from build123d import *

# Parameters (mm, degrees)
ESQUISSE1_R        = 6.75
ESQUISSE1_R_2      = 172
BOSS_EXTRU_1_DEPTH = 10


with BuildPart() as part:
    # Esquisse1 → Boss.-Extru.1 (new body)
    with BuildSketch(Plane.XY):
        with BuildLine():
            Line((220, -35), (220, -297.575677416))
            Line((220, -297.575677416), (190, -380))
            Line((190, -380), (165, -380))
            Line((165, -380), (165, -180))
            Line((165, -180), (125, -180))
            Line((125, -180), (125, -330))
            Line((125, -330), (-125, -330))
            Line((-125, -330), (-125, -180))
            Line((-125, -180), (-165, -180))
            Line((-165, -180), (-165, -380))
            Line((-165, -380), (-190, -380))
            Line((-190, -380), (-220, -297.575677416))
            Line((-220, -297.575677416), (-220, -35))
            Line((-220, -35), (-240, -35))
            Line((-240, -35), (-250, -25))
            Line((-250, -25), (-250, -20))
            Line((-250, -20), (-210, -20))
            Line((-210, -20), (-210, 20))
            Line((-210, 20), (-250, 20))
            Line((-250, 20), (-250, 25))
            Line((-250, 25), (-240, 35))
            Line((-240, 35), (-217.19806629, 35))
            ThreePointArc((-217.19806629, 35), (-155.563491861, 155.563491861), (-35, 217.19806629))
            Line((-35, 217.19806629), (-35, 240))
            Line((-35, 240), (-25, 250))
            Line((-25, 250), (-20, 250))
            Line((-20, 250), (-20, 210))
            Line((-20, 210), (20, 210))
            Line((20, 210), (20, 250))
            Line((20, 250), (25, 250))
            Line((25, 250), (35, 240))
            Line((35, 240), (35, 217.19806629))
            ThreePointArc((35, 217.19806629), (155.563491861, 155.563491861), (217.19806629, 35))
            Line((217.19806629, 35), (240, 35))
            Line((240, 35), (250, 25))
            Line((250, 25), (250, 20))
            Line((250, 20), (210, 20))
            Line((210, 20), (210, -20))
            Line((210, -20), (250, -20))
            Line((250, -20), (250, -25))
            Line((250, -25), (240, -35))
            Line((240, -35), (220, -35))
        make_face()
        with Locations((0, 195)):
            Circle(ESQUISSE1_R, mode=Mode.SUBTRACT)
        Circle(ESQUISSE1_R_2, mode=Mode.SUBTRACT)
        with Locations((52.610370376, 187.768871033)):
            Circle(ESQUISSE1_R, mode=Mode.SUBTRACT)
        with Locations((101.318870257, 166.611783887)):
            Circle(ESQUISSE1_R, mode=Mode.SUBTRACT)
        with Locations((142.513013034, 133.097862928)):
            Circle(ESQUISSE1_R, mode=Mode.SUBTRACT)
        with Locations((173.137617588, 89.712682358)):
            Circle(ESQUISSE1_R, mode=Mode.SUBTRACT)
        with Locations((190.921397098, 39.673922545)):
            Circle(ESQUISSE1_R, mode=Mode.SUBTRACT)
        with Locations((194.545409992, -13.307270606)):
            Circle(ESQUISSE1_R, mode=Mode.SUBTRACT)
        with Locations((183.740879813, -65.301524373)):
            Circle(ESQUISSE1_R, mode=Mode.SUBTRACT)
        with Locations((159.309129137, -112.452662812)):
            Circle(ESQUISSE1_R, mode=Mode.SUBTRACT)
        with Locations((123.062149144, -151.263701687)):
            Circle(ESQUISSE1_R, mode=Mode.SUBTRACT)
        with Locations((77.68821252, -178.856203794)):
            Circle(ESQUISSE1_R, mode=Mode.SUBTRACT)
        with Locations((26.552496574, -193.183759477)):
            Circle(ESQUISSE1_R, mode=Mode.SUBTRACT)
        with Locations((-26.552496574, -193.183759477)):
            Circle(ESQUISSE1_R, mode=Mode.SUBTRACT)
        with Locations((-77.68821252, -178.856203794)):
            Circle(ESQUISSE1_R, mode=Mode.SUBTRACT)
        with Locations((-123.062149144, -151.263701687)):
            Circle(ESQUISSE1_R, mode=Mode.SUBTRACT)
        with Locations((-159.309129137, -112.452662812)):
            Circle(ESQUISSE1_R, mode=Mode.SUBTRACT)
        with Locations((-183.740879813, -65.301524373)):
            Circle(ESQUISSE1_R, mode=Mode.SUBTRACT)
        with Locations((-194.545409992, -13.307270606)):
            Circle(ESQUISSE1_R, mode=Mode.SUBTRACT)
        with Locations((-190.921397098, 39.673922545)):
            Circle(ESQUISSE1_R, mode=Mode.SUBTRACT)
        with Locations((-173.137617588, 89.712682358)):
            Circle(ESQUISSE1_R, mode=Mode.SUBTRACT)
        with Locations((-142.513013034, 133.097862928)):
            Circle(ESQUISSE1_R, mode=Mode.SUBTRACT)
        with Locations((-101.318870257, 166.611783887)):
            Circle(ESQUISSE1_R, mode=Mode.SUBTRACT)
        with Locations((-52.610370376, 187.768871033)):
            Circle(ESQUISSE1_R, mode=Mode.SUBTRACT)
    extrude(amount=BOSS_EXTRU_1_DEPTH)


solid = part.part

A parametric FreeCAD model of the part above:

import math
import FreeCAD as App
import Part
import Sketcher

V = App.Vector
Q = App.Units.Quantity

doc = App.newDocument("Part")
body = doc.addObject("PartDesign::Body", "Body")

# Sketch on XY plane
sketch1 = doc.addObject("Sketcher::SketchObject", "Sketch")
body.addObject(sketch1)
sketch1.AttachmentSupport = (doc.XY_Plane, [""])
sketch1.MapMode = "FlatFace"
sketch1.addGeometry([
    Part.LineSegment(V(220, -297.575677, 0), V(220, -35, 0)),  # 0
    Part.LineSegment(V(220, -35, 0), V(240, -35, 0)),  # 1
    Part.LineSegment(V(240, -35, 0), V(250, -25, 0)),  # 2
    Part.LineSegment(V(250, -25, 0), V(250, -20, 0)),  # 3
    Part.LineSegment(V(250, -20, 0), V(210, -20, 0)),  # 4
    Part.LineSegment(V(210, -20, 0), V(210, 20, 0)),  # 5
    Part.LineSegment(V(210, 20, 0), V(250, 20, 0)),  # 6
    Part.LineSegment(V(250, 20, 0), V(250, 25, 0)),  # 7
    Part.LineSegment(V(250, 25, 0), V(240, 35, 0)),  # 8
    Part.LineSegment(V(240, 35, 0), V(217.198066, 35, 0)),  # 9
    Part.ArcOfCircle(Part.Circle(V(0, 0, 0), V(0, 0, 1), 220), math.radians(9.154133), math.radians(80.845867)),  # 10
    Part.LineSegment(V(35, 217.198066, 0), V(35, 240, 0)),  # 11
    Part.LineSegment(V(35, 240, 0), V(25, 250, 0)),  # 12
    Part.LineSegment(V(25, 250, 0), V(20, 250, 0)),  # 13
    Part.LineSegment(V(20, 250, 0), V(20, 210, 0)),  # 14
    Part.LineSegment(V(20, 210, 0), V(-20, 210, 0)),  # 15
    Part.LineSegment(V(-20, 210, 0), V(-20, 250, 0)),  # 16
    Part.LineSegment(V(-20, 250, 0), V(-25, 250, 0)),  # 17
    Part.LineSegment(V(-25, 250, 0), V(-35, 240, 0)),  # 18
    Part.LineSegment(V(-35, 240, 0), V(-35, 217.198066, 0)),  # 19
    Part.ArcOfCircle(Part.Circle(V(0, 0, 0), V(0, 0, 1), 220), math.radians(99.154133), math.radians(170.845867)),  # 20
    Part.LineSegment(V(-217.198066, 35, 0), V(-240, 35, 0)),  # 21
    Part.LineSegment(V(-240, 35, 0), V(-250, 25, 0)),  # 22
    Part.LineSegment(V(-250, 25, 0), V(-250, 20, 0)),  # 23
    Part.LineSegment(V(-250, 20, 0), V(-210, 20, 0)),  # 24
    Part.LineSegment(V(-210, 20, 0), V(-210, -20, 0)),  # 25
    Part.LineSegment(V(-210, -20, 0), V(-250, -20, 0)),  # 26
    Part.LineSegment(V(-250, -20, 0), V(-250, -25, 0)),  # 27
    Part.LineSegment(V(-250, -25, 0), V(-240, -35, 0)),  # 28
    Part.LineSegment(V(-240, -35, 0), V(-220, -35, 0)),  # 29
    Part.LineSegment(V(-220, -35, 0), V(-220, -297.575677, 0)),  # 30
    Part.LineSegment(V(-220, -297.575677, 0), V(-190, -380, 0)),  # 31
    Part.LineSegment(V(-190, -380, 0), V(-165, -380, 0)),  # 32
    Part.LineSegment(V(-165, -380, 0), V(-165, -180, 0)),  # 33
    Part.LineSegment(V(-165, -180, 0), V(-125, -180, 0)),  # 34
    Part.LineSegment(V(-125, -180, 0), V(-125, -330, 0)),  # 35
    Part.LineSegment(V(-125, -330, 0), V(125, -330, 0)),  # 36
    Part.LineSegment(V(125, -330, 0), V(125, -180, 0)),  # 37
    Part.LineSegment(V(125, -180, 0), V(165, -180, 0)),  # 38
    Part.LineSegment(V(165, -180, 0), V(165, -380, 0)),  # 39
    Part.LineSegment(V(165, -380, 0), V(190, -380, 0)),  # 40
    Part.LineSegment(V(190, -380, 0), V(220, -297.575677, 0)),  # 41
    Part.Circle(V(123.062149, -151.263702, 0), V(0, 0, 1), 6.75),  # 42
    Part.Circle(V(159.309129, -112.452663, 0), V(0, 0, 1), 6.75),  # 43
    Part.Circle(V(77.688213, -178.856204, 0), V(0, 0, 1), 6.75),  # 44
    Part.Circle(V(26.552497, -193.183759, 0), V(0, 0, 1), 6.75),  # 45
    Part.Circle(V(183.74088, -65.301524, 0), V(0, 0, 1), 6.75),  # 46
    Part.Circle(V(194.54541, -13.307271, 0), V(0, 0, 1), 6.75),  # 47
    Part.Circle(V(-26.552497, -193.183759, 0), V(0, 0, 1), 6.75),  # 48
    Part.Circle(V(-77.688213, -178.856204, 0), V(0, 0, 1), 6.75),  # 49
    Part.Circle(V(-123.062149, -151.263702, 0), V(0, 0, 1), 6.75),  # 50
    Part.Circle(V(-159.309129, -112.452663, 0), V(0, 0, 1), 6.75),  # 51
    Part.Circle(V(0, 0, 0), V(0, 0, 1), 172),  # 52
    Part.Circle(V(-183.74088, -65.301524, 0), V(0, 0, 1), 6.75),  # 53
    Part.Circle(V(-194.54541, -13.307271, 0), V(0, 0, 1), 6.75),  # 54
    Part.Circle(V(190.921397, 39.673923, 0), V(0, 0, 1), 6.75),  # 55
    Part.Circle(V(173.137618, 89.712682, 0), V(0, 0, 1), 6.75),  # 56
    Part.Circle(V(142.513013, 133.097863, 0), V(0, 0, 1), 6.75),  # 57
    Part.Circle(V(101.31887, 166.611784, 0), V(0, 0, 1), 6.75),  # 58
    Part.Circle(V(52.61037, 187.768871, 0), V(0, 0, 1), 6.75),  # 59
    Part.Circle(V(-190.921397, 39.673923, 0), V(0, 0, 1), 6.75),  # 60
    Part.Circle(V(-173.137618, 89.712682, 0), V(0, 0, 1), 6.75),  # 61
    Part.Circle(V(0, 195, 0), V(0, 0, 1), 6.75),  # 62
    Part.Circle(V(-52.61037, 187.768871, 0), V(0, 0, 1), 6.75),  # 63
    Part.Circle(V(-142.513013, 133.097863, 0), V(0, 0, 1), 6.75),  # 64
    Part.Circle(V(-101.31887, 166.611784, 0), V(0, 0, 1), 6.75),  # 65
], False)
sketch1.addConstraint([
    Sketcher.Constraint("Coincident", 0, 2, 1, 1),
    Sketcher.Constraint("Coincident", 1, 2, 2, 1),
    Sketcher.Constraint("Coincident", 2, 2, 3, 1),
    Sketcher.Constraint("Coincident", 3, 2, 4, 1),
    Sketcher.Constraint("Coincident", 4, 2, 5, 1),
    Sketcher.Constraint("Coincident", 5, 2, 6, 1),
    Sketcher.Constraint("Coincident", 6, 2, 7, 1),
    Sketcher.Constraint("Coincident", 7, 2, 8, 1),
    Sketcher.Constraint("Coincident", 8, 2, 9, 1),
    Sketcher.Constraint("Coincident", 9, 2, 10, 1),
    Sketcher.Constraint("Coincident", 10, 2, 11, 1),
    Sketcher.Constraint("Coincident", 11, 2, 12, 1),
    Sketcher.Constraint("Coincident", 12, 2, 13, 1),
    Sketcher.Constraint("Coincident", 13, 2, 14, 1),
    Sketcher.Constraint("Coincident", 14, 2, 15, 1),
    Sketcher.Constraint("Coincident", 15, 2, 16, 1),
    Sketcher.Constraint("Coincident", 16, 2, 17, 1),
    Sketcher.Constraint("Coincident", 17, 2, 18, 1),
    Sketcher.Constraint("Coincident", 18, 2, 19, 1),
    Sketcher.Constraint("Coincident", 19, 2, 20, 1),
    Sketcher.Constraint("Coincident", 20, 2, 21, 1),
    Sketcher.Constraint("Coincident", 21, 2, 22, 1),
    Sketcher.Constraint("Coincident", 22, 2, 23, 1),
    Sketcher.Constraint("Coincident", 23, 2, 24, 1),
    Sketcher.Constraint("Coincident", 24, 2, 25, 1),
    Sketcher.Constraint("Coincident", 25, 2, 26, 1),
    Sketcher.Constraint("Coincident", 26, 2, 27, 1),
    Sketcher.Constraint("Coincident", 27, 2, 28, 1),
    Sketcher.Constraint("Coincident", 28, 2, 29, 1),
    Sketcher.Constraint("Coincident", 29, 2, 30, 1),
    Sketcher.Constraint("Coincident", 30, 2, 31, 1),
    Sketcher.Constraint("Coincident", 31, 2, 32, 1),
    Sketcher.Constraint("Coincident", 32, 2, 33, 1),
    Sketcher.Constraint("Coincident", 33, 2, 34, 1),
    Sketcher.Constraint("Coincident", 34, 2, 35, 1),
    Sketcher.Constraint("Coincident", 35, 2, 36, 1),
    Sketcher.Constraint("Coincident", 36, 2, 37, 1),
    Sketcher.Constraint("Coincident", 37, 2, 38, 1),
    Sketcher.Constraint("Coincident", 38, 2, 39, 1),
    Sketcher.Constraint("Coincident", 39, 2, 40, 1),
    Sketcher.Constraint("Coincident", 40, 2, 41, 1),
    Sketcher.Constraint("Coincident", 41, 2, 0, 1),
    Sketcher.Constraint("Vertical", 0),
    Sketcher.Constraint("Horizontal", 1),
    Sketcher.Constraint("Vertical", 3),
    Sketcher.Constraint("Horizontal", 4),
    Sketcher.Constraint("Vertical", 5),
    Sketcher.Constraint("Horizontal", 6),
    Sketcher.Constraint("Vertical", 7),
    Sketcher.Constraint("Horizontal", 9),
    Sketcher.Constraint("Vertical", 11),
    Sketcher.Constraint("Horizontal", 13),
    Sketcher.Constraint("Vertical", 14),
    Sketcher.Constraint("Horizontal", 15),
    Sketcher.Constraint("Vertical", 16),
    Sketcher.Constraint("Horizontal", 17),
    Sketcher.Constraint("Vertical", 19),
    Sketcher.Constraint("Horizontal", 21),
    Sketcher.Constraint("Vertical", 23),
    Sketcher.Constraint("Horizontal", 24),
    Sketcher.Constraint("Vertical", 25),
    Sketcher.Constraint("Horizontal", 26),
    Sketcher.Constraint("Vertical", 27),
    Sketcher.Constraint("Horizontal", 29),
    Sketcher.Constraint("Vertical", 30),
    Sketcher.Constraint("Horizontal", 32),
    Sketcher.Constraint("Vertical", 33),
    Sketcher.Constraint("Horizontal", 34),
    Sketcher.Constraint("Vertical", 35),
    Sketcher.Constraint("Horizontal", 36),
    Sketcher.Constraint("Vertical", 37),
    Sketcher.Constraint("Horizontal", 38),
    Sketcher.Constraint("Vertical", 39),
    Sketcher.Constraint("Horizontal", 40),
    Sketcher.Constraint("Coincident", 10, 3, -1, 1),
    Sketcher.Constraint("Coincident", 20, 3, -1, 1),
    Sketcher.Constraint("Coincident", 52, 3, -1, 1),
    Sketcher.Constraint("Equal", 10, 20),
    Sketcher.Constraint("Equal", 42, 43),
    Sketcher.Constraint("Equal", 43, 44),
    Sketcher.Constraint("Equal", 44, 45),
    Sketcher.Constraint("Equal", 45, 46),
    Sketcher.Constraint("Equal", 46, 47),
    Sketcher.Constraint("Equal", 47, 48),
    Sketcher.Constraint("Equal", 48, 49),
    Sketcher.Constraint("Equal", 49, 50),
    Sketcher.Constraint("Equal", 50, 51),
    Sketcher.Constraint("Equal", 51, 53),
    Sketcher.Constraint("Equal", 53, 54),
    Sketcher.Constraint("Equal", 54, 55),
    Sketcher.Constraint("Equal", 55, 56),
    Sketcher.Constraint("Equal", 56, 57),
    Sketcher.Constraint("Equal", 57, 58),
    Sketcher.Constraint("Equal", 58, 59),
    Sketcher.Constraint("Equal", 59, 60),
    Sketcher.Constraint("Equal", 60, 61),
    Sketcher.Constraint("Equal", 61, 62),
    Sketcher.Constraint("Equal", 62, 63),
    Sketcher.Constraint("Equal", 63, 64),
    Sketcher.Constraint("Equal", 64, 65),
    Sketcher.Constraint("Symmetric", 1, 2, 21, 2, -1, 1),
    Sketcher.Constraint("Symmetric", 2, 2, 22, 2, -1, 1),
    Sketcher.Constraint("Symmetric", 4, 2, 24, 2, -1, 1),
    Sketcher.Constraint("Symmetric", 6, 2, 26, 2, -1, 1),
    Sketcher.Constraint("Symmetric", 8, 2, 28, 2, -1, 1),
    Sketcher.Constraint("Symmetric", 45, 3, 48, 3, -2),
    Sketcher.Constraint("Symmetric", 44, 3, 49, 3, -2),
    Sketcher.Constraint("Symmetric", 42, 3, 50, 3, -2),
    Sketcher.Constraint("Symmetric", 43, 3, 51, 3, -2),
    Sketcher.Constraint("Symmetric", 46, 3, 53, 3, -2),
    Sketcher.Constraint("Symmetric", 47, 3, 54, 3, -2),
    Sketcher.Constraint("Symmetric", 55, 3, 60, 3, -2),
    Sketcher.Constraint("Symmetric", 56, 3, 61, 3, -2),
    Sketcher.Constraint("Symmetric", 59, 3, 63, 3, -2),
    Sketcher.Constraint("Symmetric", 57, 3, 64, 3, -2),
    Sketcher.Constraint("Symmetric", 58, 3, 65, 3, -2),
    Sketcher.Constraint("Symmetric", 13, 2, 16, 2, -2),
    Sketcher.Constraint("Symmetric", 11, 2, 18, 2, -2),
    Sketcher.Constraint("Symmetric", 8, 2, 21, 2, -2),
    Sketcher.Constraint("Symmetric", 7, 2, 22, 2, -2),
    Sketcher.Constraint("Symmetric", 34, 2, 37, 2, -2),
    Sketcher.Constraint("Symmetric", 32, 2, 39, 2, -2),
    Sketcher.Constraint("Symmetric", 30, 2, 41, 2, -2),
    Sketcher.Constraint("PointOnObject", 62, 3, -2),
    Sketcher.Constraint("Perpendicular", 2, 8),
    Sketcher.Constraint("Parallel", 8, 12),
    Sketcher.Constraint("Perpendicular", 12, 18),
    Sketcher.Constraint("Perpendicular", 22, 28),
    Sketcher.Constraint("Horizontal", 6, 2, 23, 2),
    Sketcher.Constraint("Equal", 6, 15),
    Sketcher.Constraint("Equal", 26, 34),
    Sketcher.Constraint("Equal", 32, 40),
    Sketcher.Constraint("Equal", 17, 3),
    Sketcher.Constraint("Equal", 38, 5),
    Sketcher.Constraint("Equal", 21, 11),
    Sketcher.Constraint("Equal", 5, 14),
    Sketcher.Constraint("Equal", 8, 12),
    Sketcher.Constraint("Diameter", 52, Q("344 mm")),
    Sketcher.Constraint("Radius", 10, Q("220 mm")),
    Sketcher.Constraint("Diameter", 42, Q("13.5 mm")),
    Sketcher.Constraint("DistanceX", 1, 1, 1, 2, Q("20 mm")),
    Sketcher.Constraint("DistanceX", 4, 2, 4, 1, Q("40 mm")),
    Sketcher.Constraint("DistanceX", 13, 2, 13, 1, Q("5 mm")),
    Sketcher.Constraint("DistanceX", 32, 1, 32, 2, Q("25 mm")),
    Sketcher.Constraint("DistanceX", 36, 1, 36, 2, Q("250 mm")),
    Sketcher.Constraint("DistanceY", 33, 1, 33, 2, Q("200 mm")),
    Sketcher.Constraint("DistanceY", 35, 2, 35, 1, Q("150 mm")),
    Sketcher.Constraint("Angle", 31, Q("-70 deg")),
    Sketcher.Constraint("DistanceY", -1, 1, 62, 3, Q("195 mm")),
    Sketcher.Constraint("DistanceX", -1, 1, 0, 2, Q("220 mm")),
    Sketcher.Constraint("DistanceY", 0, 2, -1, 1, Q("35 mm")),
    Sketcher.Constraint("DistanceY", 31, 2, -1, 1, Q("380 mm")),
    Sketcher.Constraint("DistanceY", 42, 3, -1, 1, Q("151.263702 mm")),
    Sketcher.Constraint("DistanceX", -1, 1, 42, 3, Q("123.062149 mm")),
    Sketcher.Constraint("DistanceX", -1, 1, 43, 3, Q("159.309129 mm")),
    Sketcher.Constraint("DistanceY", 45, 3, -1, 1, Q("193.183759 mm")),
    Sketcher.Constraint("DistanceX", -1, 1, 46, 3, Q("183.74088 mm")),
    Sketcher.Constraint("DistanceX", -1, 1, 47, 3, Q("194.54541 mm")),
    Sketcher.Constraint("DistanceY", 47, 3, -1, 1, Q("13.307271 mm")),
    Sketcher.Constraint("DistanceX", -1, 1, 58, 3, Q("101.31887 mm")),
    Sketcher.Constraint("DistanceX", -1, 1, 59, 3, Q("52.61037 mm")),
    Sketcher.Constraint("DistanceY", -1, 1, 59, 3, Q("187.768871 mm")),
    Sketcher.Constraint("DistanceY", 43, 3, -1, 1, Q("112.452663 mm")),
    Sketcher.Constraint("DistanceX", -1, 1, 44, 3, Q("77.688213 mm")),
    Sketcher.Constraint("DistanceY", 44, 3, -1, 1, Q("178.856204 mm")),
    Sketcher.Constraint("DistanceX", -1, 1, 45, 3, Q("26.552497 mm")),
    Sketcher.Constraint("DistanceY", 46, 3, -1, 1, Q("65.301524 mm")),
    Sketcher.Constraint("DistanceX", -1, 1, 55, 3, Q("190.921397 mm")),
    Sketcher.Constraint("DistanceY", -1, 1, 55, 3, Q("39.673923 mm")),
    Sketcher.Constraint("DistanceX", -1, 1, 56, 3, Q("173.137618 mm")),
    Sketcher.Constraint("DistanceY", -1, 1, 56, 3, Q("89.712682 mm")),
    Sketcher.Constraint("DistanceX", -1, 1, 57, 3, Q("142.513013 mm")),
    Sketcher.Constraint("DistanceY", -1, 1, 57, 3, Q("133.097863 mm")),
    Sketcher.Constraint("DistanceY", -1, 1, 58, 3, Q("166.611784 mm")),
])
pad1 = doc.addObject("PartDesign::Pad", "Pad")
body.addObject(pad1)
pad1.Profile = sketch1
pad1.Length = 10

doc.recompute()
